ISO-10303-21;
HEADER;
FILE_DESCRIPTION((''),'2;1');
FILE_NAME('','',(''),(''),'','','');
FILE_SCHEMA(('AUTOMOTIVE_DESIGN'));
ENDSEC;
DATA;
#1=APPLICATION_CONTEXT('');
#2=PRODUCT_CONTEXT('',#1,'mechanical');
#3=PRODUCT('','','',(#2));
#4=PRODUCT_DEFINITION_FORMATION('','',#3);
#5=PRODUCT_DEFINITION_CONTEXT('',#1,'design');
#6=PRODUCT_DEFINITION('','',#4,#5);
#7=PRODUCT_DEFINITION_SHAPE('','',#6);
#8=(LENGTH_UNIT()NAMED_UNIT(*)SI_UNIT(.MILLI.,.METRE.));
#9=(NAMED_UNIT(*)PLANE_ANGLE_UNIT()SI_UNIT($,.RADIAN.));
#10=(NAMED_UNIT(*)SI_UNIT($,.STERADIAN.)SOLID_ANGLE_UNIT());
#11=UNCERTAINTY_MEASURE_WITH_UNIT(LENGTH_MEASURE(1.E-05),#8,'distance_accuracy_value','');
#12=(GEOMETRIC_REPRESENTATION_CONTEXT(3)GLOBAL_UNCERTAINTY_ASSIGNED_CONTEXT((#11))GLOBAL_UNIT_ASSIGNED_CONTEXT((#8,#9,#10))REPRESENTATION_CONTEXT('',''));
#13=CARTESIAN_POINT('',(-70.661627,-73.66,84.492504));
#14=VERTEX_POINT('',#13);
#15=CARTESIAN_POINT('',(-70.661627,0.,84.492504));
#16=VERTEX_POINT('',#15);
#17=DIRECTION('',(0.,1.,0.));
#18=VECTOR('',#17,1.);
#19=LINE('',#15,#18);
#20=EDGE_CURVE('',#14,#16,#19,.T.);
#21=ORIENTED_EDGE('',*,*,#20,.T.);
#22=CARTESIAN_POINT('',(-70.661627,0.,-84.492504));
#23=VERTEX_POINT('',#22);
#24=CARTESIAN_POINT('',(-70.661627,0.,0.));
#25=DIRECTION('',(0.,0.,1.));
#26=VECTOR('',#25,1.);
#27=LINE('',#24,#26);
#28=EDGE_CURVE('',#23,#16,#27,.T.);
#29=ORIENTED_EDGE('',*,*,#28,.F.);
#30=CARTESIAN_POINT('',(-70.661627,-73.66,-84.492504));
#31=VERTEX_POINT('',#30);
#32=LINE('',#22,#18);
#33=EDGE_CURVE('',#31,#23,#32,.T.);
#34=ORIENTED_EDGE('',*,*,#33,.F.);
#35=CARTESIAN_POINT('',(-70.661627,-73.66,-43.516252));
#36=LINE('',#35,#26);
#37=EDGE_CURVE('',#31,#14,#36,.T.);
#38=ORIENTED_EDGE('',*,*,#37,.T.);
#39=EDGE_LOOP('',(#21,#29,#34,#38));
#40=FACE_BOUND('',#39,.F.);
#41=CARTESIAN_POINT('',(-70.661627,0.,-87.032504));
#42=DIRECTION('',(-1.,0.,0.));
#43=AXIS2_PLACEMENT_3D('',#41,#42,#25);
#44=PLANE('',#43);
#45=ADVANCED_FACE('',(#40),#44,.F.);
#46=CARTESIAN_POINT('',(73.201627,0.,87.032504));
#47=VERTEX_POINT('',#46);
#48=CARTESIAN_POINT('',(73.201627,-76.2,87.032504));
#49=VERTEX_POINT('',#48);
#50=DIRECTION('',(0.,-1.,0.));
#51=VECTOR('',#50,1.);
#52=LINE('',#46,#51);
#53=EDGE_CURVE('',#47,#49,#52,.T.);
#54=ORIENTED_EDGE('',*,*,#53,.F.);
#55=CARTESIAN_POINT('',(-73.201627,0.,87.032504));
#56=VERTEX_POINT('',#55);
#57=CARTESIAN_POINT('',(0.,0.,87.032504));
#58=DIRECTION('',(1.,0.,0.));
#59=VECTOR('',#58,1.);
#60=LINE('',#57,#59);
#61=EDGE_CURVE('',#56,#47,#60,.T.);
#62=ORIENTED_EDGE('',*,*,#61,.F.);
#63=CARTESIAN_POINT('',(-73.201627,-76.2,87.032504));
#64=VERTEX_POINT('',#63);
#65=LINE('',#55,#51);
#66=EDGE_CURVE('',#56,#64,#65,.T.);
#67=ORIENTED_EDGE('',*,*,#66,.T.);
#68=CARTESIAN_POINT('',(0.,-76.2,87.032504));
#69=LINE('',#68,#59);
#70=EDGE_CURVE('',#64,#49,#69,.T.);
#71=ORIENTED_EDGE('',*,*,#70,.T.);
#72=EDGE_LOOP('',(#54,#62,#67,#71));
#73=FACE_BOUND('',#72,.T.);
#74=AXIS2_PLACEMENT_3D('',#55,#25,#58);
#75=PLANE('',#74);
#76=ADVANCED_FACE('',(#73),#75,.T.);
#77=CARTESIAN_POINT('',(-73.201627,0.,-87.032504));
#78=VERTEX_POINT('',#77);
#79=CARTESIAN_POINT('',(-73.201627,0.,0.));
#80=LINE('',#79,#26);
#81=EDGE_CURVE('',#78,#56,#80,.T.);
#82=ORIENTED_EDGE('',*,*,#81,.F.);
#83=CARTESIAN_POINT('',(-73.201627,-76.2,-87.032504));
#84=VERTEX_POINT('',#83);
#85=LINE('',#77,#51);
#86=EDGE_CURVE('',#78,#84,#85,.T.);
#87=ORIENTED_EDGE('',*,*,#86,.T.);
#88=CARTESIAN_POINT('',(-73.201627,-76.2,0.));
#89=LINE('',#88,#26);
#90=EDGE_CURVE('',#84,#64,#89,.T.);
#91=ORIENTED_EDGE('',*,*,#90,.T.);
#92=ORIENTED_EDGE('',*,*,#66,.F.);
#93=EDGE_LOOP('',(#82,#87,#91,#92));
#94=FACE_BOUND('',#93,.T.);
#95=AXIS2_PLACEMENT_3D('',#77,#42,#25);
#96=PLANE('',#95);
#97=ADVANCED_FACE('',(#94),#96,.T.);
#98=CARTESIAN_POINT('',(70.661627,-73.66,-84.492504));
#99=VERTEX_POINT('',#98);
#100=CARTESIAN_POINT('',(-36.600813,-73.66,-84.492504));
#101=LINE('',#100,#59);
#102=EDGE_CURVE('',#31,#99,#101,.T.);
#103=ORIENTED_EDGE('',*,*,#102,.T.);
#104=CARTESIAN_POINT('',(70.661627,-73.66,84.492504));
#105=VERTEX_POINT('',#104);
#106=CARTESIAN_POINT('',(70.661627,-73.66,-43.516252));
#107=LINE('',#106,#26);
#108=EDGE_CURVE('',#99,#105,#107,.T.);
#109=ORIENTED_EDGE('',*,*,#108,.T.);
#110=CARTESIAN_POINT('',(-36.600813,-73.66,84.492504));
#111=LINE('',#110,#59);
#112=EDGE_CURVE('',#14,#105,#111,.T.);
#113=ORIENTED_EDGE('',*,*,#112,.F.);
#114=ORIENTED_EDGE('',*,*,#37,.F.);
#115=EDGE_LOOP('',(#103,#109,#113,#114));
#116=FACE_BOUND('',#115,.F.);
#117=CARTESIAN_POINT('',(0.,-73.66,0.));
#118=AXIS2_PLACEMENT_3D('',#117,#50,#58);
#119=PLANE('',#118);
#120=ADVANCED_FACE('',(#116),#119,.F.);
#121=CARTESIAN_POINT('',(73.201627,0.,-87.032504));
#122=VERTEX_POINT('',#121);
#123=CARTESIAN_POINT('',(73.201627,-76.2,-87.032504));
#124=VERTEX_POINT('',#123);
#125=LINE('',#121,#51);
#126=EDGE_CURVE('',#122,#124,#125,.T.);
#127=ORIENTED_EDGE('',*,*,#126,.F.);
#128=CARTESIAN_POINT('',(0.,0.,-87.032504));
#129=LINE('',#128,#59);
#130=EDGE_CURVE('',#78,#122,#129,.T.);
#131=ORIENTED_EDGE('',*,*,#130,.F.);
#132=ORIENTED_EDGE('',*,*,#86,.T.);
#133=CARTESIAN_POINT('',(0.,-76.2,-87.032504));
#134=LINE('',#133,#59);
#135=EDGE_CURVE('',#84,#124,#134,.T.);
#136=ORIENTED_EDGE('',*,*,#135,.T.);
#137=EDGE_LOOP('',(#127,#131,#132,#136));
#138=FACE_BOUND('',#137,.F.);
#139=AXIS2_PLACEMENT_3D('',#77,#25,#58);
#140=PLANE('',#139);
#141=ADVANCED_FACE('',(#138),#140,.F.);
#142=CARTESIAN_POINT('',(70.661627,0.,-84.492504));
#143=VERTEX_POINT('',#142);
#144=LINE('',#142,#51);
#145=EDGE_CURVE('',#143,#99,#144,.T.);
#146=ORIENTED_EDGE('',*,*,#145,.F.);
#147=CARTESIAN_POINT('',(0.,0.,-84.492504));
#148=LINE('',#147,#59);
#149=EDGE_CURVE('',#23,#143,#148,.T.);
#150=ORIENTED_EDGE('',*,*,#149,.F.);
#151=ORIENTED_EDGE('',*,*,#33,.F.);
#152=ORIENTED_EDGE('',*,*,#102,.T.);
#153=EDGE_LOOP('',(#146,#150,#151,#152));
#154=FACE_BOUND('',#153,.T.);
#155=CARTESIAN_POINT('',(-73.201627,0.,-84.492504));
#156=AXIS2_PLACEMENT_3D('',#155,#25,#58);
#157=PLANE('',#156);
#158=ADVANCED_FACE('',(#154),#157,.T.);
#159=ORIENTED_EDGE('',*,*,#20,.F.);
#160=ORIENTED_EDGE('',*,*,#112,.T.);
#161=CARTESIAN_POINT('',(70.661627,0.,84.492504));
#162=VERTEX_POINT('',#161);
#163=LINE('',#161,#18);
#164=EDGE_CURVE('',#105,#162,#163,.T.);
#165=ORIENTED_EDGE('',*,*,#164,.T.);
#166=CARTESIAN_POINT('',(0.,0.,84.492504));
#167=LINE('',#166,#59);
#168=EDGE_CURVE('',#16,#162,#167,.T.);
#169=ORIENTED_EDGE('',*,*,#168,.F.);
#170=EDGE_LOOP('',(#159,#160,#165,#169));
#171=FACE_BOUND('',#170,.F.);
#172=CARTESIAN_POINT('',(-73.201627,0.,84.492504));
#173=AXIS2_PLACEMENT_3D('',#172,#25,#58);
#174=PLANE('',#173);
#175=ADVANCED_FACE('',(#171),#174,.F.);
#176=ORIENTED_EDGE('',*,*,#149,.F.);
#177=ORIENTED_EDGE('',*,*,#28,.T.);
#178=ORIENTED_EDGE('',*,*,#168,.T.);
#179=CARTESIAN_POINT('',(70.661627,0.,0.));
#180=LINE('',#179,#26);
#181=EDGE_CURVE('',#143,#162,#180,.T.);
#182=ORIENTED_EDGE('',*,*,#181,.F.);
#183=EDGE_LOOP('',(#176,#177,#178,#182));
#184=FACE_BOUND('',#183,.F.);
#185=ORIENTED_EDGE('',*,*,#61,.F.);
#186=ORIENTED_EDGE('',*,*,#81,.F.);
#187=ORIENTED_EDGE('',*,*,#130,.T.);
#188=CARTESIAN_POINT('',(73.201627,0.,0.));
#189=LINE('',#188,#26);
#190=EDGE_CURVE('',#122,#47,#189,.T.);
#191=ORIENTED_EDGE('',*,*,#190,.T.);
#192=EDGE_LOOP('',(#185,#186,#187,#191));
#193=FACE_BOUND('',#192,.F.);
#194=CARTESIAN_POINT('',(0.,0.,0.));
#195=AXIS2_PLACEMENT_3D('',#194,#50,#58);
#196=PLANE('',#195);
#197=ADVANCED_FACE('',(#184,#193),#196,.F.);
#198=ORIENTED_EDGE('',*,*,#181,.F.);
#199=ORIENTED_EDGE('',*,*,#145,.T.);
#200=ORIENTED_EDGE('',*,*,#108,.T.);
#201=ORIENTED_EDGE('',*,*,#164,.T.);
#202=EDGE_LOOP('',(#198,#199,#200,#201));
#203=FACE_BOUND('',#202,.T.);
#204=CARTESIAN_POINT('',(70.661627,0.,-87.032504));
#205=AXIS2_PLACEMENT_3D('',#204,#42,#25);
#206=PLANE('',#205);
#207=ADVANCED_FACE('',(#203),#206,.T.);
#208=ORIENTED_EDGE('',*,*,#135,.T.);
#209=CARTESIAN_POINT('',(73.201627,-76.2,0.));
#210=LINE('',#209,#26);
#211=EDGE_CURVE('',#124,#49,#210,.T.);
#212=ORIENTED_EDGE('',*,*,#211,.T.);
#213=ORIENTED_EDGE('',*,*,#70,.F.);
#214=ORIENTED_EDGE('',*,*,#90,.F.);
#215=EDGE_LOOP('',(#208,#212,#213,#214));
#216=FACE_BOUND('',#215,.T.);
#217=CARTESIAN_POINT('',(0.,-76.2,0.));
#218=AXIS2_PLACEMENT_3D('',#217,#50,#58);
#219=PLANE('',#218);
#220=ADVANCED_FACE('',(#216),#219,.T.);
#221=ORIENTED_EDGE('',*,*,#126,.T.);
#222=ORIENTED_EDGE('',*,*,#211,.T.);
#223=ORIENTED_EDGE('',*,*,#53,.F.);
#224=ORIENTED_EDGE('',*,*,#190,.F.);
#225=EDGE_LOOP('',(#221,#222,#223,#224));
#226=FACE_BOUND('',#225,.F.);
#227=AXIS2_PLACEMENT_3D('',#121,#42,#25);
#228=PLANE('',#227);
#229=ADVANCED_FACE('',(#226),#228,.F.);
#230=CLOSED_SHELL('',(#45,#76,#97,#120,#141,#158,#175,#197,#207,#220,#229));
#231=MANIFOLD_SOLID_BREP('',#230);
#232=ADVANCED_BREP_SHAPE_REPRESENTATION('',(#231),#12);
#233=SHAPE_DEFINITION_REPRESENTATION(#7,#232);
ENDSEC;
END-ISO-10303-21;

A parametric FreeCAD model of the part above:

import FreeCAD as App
import Part
import Sketcher

V = App.Vector


def faces_at(feature, points):
    """Names of the faces that lie closest to the given points."""
    faces = feature.Shape.Faces
    near = lambda p: min(range(len(faces)), key=lambda i: faces[i].distToShape(Part.Vertex(*p))[0])
    return sorted({f"Face{near(p) + 1}" for p in points})

doc = App.newDocument("Part")
params = doc.addObject("Spreadsheet::Sheet", "Params")
for row, (alias, value) in enumerate([
    ("pad1_length", "5 in"),
    ("pad2_length", "3 in"),
    ("thickness_wall", "0.1 in"),
], start=1):
    params.set(f"A{row}", alias)
    params.set(f"B{row}", "=" + value)
    params.setAlias(f"B{row}", alias)

body = doc.addObject("PartDesign::Body", "Body")

# Sketch on XZ plane
sketch1 = body.newObject("Sketcher::SketchObject", "Sketch")
sketch1.AttachmentSupport = (doc.getObject("XZ_Plane"), [""])
sketch1.MapMode = "FlatFace"
sketch1.addGeometry([
    Part.LineSegment(V(-128, 84, 0), V(-128, -84, 0)),
    Part.LineSegment(V(-128, -84, 0), V(128, -84, 0)),
    Part.LineSegment(V(128, -84, 0), V(128, 84, 0)),
    Part.LineSegment(V(128, 84, 0), V(-128, 84, 0)),
], False)
sketch1.addConstraint([
    Sketcher.Constraint("Coincident", 0, 2, 1, 1),
    Sketcher.Constraint("Coincident", 1, 2, 2, 1),
    Sketcher.Constraint("Coincident", 2, 2, 3, 1),
    Sketcher.Constraint("Coincident", 3, 2, 0, 1),
    Sketcher.Constraint("Vertical", 0),
    Sketcher.Constraint("Horizontal", 1),
    Sketcher.Constraint("Vertical", 2),
    Sketcher.Constraint("Horizontal", 3),
    Sketcher.Constraint("Symmetric", 0, 2, 2, 2, -1, 1),
    Sketcher.Constraint("DistanceX", 1, 1, 1, 2, 255.463511),
    Sketcher.Constraint("DistanceY", 0, 2, 0, 1, 167.353004),
])
pad1 = body.newObject("PartDesign::Pad", "Pad")
pad1.Profile = sketch1
pad1.setExpression("Length", "Params.pad1_length")
body2 = doc.addObject("PartDesign::Body", "Body001")

# Sketch on XZ plane
sketch2 = body2.newObject("Sketcher::SketchObject", "Sketch001")
sketch2.AttachmentSupport = (doc.getObject("XZ_Plane001"), [""])
sketch2.MapMode = "FlatFace"
sketch2.addGeometry([
    Part.LineSegment(V(-73, 87, 0), V(-73, -87, 0)),
    Part.LineSegment(V(-73, -87, 0), V(73, -87, 0)),
    Part.LineSegment(V(73, -87, 0), V(73, 87, 0)),
    Part.LineSegment(V(73, 87, 0), V(-73, 87, 0)),
], False)
sketch2.addConstraint([
    Sketcher.Constraint("Coincident", 0, 2, 1, 1),
    Sketcher.Constraint("Coincident", 1, 2, 2, 1),
    Sketcher.Constraint("Coincident", 2, 2, 3, 1),
    Sketcher.Constraint("Coincident", 3, 2, 0, 1),
    Sketcher.Constraint("Vertical", 0),
    Sketcher.Constraint("Horizontal", 1),
    Sketcher.Constraint("Vertical", 2),
    Sketcher.Constraint("Horizontal", 3),
    Sketcher.Constraint("Symmetric", 0, 2, 2, 2, -1, 1),
    Sketcher.Constraint("DistanceY", 0, 2, 0, 1, 174.065009),
    Sketcher.Constraint("DistanceX", 1, 1, 1, 2, 146.403253),
])
pad2 = body2.newObject("PartDesign::Pad", "Pad001")
pad2.Profile = sketch2
pad2.setExpression("Length", "Params.pad2_length")
doc.recompute()

thickness = body2.newObject("PartDesign::Thickness", "Thickness")
thickness.Base = (pad2, faces_at(pad2, [(0, 0, 0)]))
thickness.setExpression("Value", "Params.thickness_wall")
thickness.Reversed = True
thickness.Join = "Arc"
body.Visibility = False

doc.recompute()
